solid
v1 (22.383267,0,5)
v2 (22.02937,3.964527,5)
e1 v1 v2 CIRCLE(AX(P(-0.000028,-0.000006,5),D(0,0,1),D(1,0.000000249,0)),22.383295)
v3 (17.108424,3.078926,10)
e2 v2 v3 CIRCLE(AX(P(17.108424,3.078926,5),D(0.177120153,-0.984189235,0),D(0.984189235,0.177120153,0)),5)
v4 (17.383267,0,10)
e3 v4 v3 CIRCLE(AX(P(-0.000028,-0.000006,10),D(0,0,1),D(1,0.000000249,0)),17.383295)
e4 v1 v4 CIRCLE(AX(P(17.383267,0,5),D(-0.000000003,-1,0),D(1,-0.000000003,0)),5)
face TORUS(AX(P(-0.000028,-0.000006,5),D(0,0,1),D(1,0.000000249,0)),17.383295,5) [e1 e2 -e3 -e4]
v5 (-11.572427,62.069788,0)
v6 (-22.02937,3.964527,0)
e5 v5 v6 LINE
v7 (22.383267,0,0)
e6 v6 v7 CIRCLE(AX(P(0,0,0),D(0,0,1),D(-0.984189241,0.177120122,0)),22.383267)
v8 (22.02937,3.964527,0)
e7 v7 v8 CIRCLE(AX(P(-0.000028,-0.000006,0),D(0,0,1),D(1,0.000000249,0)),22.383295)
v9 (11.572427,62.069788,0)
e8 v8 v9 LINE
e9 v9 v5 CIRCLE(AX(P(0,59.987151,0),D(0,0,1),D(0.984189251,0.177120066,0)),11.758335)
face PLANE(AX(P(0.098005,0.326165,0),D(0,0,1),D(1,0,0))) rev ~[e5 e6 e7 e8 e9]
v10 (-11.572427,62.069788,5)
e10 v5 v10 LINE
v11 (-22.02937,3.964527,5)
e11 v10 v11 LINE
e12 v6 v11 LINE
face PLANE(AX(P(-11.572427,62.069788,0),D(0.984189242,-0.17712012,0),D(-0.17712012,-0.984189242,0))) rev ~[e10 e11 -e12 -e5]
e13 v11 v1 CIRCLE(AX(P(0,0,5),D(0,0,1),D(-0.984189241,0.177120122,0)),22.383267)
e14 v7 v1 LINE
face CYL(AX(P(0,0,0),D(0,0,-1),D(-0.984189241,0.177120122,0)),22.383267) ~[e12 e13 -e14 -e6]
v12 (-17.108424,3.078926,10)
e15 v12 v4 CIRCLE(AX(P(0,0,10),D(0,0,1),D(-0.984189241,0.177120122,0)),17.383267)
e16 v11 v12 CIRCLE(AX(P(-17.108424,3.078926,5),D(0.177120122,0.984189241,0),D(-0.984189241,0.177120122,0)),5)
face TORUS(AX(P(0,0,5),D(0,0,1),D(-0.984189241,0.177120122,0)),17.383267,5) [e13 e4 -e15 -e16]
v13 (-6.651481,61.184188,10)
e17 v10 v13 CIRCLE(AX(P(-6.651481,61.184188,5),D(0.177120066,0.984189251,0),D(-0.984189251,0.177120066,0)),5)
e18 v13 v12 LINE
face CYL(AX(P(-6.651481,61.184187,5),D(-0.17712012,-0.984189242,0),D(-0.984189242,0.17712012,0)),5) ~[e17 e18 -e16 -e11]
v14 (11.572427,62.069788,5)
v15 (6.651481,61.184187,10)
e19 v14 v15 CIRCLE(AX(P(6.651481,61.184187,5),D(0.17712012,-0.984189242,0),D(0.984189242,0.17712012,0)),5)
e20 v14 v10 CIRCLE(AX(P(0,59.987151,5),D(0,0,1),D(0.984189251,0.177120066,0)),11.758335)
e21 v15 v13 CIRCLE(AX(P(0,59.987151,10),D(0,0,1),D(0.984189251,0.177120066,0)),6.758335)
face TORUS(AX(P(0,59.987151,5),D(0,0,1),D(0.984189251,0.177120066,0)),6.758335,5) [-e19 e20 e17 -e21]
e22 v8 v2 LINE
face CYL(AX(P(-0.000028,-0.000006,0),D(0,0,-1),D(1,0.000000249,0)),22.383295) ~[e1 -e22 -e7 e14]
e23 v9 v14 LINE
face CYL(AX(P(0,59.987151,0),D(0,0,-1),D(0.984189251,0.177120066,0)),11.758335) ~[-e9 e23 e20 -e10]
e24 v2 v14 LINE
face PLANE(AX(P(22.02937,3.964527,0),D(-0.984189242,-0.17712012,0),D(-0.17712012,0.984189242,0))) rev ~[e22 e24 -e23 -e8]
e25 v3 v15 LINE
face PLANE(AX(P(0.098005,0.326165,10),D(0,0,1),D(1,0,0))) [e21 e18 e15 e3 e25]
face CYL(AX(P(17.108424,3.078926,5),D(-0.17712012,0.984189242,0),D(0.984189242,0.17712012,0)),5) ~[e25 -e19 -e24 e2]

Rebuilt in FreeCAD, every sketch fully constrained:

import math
import FreeCAD as App
import Part
import Sketcher

V = App.Vector
Q = App.Units.Quantity


def edges_at(feature, points):
    """Names of the edges that pass closest to the given points."""
    edges = feature.Shape.Edges
    near = lambda p: min(range(len(edges)), key=lambda i: edges[i].distToShape(Part.Vertex(*p))[0])
    return sorted({f"Edge{near(p) + 1}" for p in points})

doc = App.newDocument("Part")
body = doc.addObject("PartDesign::Body", "Body")

# Sketch on XY plane
sketch1 = body.newObject("Sketcher::SketchObject", "Sketch")
sketch1.AttachmentSupport = (doc.getObject("XY_Plane"), [""])
sketch1.MapMode = "FlatFace"
sketch1.addGeometry([
    Part.ArcOfCircle(Part.Circle(V(0, 0, 0), V(0, 0, 1), 22.383267), math.radians(169.79794), math.radians(360)),  # 0
    Part.ArcOfCircle(Part.Circle(V(-0.000028, -0.000006, 0), V(0, 0, 1), 22.383295), math.radians(0.000014), math.radians(10.202062)),  # 1
    Part.LineSegment(V(22.02937, 3.964527, 0), V(11.572427, 62.069788, 0)),  # 2
    Part.ArcOfCircle(Part.Circle(V(0, 59.987151, 0), V(0, 0, 1), 11.758335), math.radians(10.202056), math.radians(169.797944)),  # 3
    Part.LineSegment(V(-11.572427, 62.069788, 0), V(-22.02937, 3.964527, 0)),  # 4
], False)
sketch1.addConstraint([
    Sketcher.Constraint("Coincident", 0, 2, 1, 1),
    Sketcher.Constraint("Coincident", 1, 2, 2, 1),
    Sketcher.Constraint("Coincident", 2, 2, 3, 1),
    Sketcher.Constraint("Coincident", 3, 2, 4, 1),
    Sketcher.Constraint("Coincident", 4, 2, 0, 1),
    Sketcher.Constraint("Coincident", 0, 3, -1, 1),
    Sketcher.Constraint("PointOnObject", 3, 3, -2),
    Sketcher.Constraint("PointOnObject", 0, 2, -1),
    Sketcher.Constraint("Radius", 0, Q("22.383267 mm")),
    Sketcher.Constraint("Radius", 1, Q("22.383295 mm")),
    Sketcher.Constraint("Radius", 3, Q("11.758335 mm")),
    Sketcher.Constraint("DistanceX", 3, 2, 1, 3, Q("11.572399 mm")),
    Sketcher.Constraint("DistanceY", -1, 1, 3, 3, Q("59.987151 mm")),
    Sketcher.Constraint("DistanceX", -1, 1, 1, 2, Q("22.02937 mm")),
    Sketcher.Constraint("DistanceY", -1, 1, 2, 2, Q("62.069788 mm")),
    Sketcher.Constraint("DistanceX", 4, 2, -1, 1, Q("22.02937 mm")),
    Sketcher.Constraint("DistanceY", 1, 2, 2, 2, Q("58.105261 mm")),
])
pad1 = body.newObject("PartDesign::Pad", "Pad")
pad1.Profile = sketch1
pad1.Length = 10
doc.recompute()

fillet = body.newObject("PartDesign::Fillet", "Fillet")
fillet.Base = (pad1, edges_at(pad1, [(-1.99, -22.295, 10)]))
fillet.Radius = 5

doc.recompute()
